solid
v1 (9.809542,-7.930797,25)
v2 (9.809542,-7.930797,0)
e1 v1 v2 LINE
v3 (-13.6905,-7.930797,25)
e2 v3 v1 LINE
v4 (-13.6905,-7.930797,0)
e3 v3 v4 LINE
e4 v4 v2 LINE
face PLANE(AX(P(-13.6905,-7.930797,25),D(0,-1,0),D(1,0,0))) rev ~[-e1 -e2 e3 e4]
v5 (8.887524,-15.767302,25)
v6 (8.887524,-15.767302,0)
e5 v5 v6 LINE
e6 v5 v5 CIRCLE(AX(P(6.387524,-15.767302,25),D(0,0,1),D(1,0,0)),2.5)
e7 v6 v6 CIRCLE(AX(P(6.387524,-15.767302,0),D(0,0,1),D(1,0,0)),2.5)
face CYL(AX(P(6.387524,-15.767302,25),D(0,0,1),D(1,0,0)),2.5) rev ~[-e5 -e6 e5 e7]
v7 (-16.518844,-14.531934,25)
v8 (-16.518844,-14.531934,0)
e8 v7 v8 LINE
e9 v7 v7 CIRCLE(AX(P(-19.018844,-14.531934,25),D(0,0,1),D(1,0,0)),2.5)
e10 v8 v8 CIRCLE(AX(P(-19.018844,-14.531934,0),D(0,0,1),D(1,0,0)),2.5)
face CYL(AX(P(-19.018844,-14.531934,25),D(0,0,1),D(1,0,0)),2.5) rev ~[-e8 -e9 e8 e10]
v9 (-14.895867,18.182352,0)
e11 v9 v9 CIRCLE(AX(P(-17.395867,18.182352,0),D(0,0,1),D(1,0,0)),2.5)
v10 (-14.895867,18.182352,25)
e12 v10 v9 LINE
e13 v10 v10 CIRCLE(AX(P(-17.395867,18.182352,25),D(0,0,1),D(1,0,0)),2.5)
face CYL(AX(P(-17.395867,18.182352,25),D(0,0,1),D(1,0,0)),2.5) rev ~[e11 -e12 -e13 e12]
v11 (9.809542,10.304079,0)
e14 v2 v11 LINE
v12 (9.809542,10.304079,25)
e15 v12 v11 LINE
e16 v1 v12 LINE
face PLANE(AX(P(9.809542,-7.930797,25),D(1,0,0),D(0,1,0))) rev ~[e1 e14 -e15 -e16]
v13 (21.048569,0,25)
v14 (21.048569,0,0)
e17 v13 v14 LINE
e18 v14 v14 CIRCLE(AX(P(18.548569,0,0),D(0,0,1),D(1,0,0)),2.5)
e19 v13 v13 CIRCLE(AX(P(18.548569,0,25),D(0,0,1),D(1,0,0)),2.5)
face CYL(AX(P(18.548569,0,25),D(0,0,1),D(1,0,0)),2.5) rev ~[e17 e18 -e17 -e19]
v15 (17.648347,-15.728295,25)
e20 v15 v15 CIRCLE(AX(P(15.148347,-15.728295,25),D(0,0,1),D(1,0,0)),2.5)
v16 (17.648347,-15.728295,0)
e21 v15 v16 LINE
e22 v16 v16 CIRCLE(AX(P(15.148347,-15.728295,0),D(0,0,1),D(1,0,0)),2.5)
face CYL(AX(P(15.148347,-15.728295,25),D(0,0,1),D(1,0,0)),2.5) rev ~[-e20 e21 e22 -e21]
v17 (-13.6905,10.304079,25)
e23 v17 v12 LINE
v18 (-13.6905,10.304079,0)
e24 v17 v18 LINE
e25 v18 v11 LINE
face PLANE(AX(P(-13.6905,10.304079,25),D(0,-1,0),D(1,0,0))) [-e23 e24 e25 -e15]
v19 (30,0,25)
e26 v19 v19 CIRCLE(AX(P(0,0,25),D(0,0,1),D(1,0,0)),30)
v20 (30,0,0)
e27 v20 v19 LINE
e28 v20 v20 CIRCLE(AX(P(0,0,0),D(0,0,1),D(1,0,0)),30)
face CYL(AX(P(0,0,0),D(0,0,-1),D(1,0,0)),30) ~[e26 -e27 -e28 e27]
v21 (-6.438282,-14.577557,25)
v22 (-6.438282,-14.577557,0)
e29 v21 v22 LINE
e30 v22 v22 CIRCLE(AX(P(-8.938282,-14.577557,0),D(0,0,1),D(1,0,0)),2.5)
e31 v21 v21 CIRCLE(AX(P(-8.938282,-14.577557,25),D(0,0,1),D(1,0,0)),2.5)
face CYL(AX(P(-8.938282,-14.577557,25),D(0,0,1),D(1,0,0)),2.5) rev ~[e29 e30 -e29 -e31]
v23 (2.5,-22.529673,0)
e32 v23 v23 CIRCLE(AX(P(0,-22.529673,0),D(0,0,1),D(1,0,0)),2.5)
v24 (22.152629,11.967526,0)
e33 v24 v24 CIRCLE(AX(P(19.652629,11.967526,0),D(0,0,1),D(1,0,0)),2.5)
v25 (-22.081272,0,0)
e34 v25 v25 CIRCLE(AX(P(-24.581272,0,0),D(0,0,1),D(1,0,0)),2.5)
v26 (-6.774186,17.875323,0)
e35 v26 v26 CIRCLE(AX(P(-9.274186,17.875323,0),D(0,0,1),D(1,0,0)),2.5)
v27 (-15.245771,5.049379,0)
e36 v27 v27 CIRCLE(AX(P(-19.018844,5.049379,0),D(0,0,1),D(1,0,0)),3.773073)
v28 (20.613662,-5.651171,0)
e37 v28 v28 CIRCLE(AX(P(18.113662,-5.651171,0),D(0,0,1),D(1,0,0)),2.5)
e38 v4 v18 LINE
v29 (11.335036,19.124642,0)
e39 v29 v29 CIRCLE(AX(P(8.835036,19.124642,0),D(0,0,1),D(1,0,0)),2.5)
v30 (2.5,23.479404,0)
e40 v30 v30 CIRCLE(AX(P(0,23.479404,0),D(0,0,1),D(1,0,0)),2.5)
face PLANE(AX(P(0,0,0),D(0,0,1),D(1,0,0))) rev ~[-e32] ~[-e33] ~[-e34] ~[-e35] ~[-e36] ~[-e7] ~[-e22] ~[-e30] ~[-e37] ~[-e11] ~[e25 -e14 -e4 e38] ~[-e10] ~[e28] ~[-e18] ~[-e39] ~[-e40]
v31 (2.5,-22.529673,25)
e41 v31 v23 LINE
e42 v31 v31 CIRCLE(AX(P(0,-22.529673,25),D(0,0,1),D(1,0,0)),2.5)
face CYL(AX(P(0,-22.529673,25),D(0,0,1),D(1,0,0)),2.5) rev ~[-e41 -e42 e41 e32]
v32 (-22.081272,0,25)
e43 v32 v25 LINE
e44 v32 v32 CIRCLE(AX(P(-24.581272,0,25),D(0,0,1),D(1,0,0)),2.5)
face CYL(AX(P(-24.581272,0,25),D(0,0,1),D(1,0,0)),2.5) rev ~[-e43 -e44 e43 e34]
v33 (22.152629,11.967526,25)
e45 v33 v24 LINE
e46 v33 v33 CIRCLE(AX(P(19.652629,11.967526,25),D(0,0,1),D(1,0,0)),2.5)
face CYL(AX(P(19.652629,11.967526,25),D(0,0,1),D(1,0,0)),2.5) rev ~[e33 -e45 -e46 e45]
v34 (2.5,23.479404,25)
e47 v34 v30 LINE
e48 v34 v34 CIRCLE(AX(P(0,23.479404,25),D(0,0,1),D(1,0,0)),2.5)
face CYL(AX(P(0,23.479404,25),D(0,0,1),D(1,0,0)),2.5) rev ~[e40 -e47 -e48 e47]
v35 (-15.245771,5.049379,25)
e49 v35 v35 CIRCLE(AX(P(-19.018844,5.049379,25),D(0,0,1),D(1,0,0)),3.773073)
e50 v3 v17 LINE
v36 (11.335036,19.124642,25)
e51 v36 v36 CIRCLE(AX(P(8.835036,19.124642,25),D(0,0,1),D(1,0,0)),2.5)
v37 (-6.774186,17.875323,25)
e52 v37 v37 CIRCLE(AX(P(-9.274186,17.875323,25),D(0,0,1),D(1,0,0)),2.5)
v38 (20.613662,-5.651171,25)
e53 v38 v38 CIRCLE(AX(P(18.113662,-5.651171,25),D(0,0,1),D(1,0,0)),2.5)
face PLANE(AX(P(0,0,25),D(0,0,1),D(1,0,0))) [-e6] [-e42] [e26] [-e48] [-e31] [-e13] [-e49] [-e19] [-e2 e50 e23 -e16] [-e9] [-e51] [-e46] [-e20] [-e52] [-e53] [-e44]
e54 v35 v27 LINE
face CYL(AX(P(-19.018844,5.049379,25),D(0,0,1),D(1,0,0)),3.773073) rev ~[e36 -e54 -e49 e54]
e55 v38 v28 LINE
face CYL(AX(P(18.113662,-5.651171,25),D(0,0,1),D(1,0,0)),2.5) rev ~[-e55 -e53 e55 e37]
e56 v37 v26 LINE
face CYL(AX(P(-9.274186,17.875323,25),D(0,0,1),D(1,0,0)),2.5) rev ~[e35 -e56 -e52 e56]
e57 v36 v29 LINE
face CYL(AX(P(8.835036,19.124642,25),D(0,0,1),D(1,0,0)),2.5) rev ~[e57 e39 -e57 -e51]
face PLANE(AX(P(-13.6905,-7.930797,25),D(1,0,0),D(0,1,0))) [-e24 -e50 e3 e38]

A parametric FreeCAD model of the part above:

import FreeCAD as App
import Part
import Sketcher
Q = App.Units.Quantity


def add_polygon(sketch, points):
    """Adds a closed chain of lines whose ends are joined by coincident constraints."""
    first, n = sketch.GeometryCount, len(points)
    for a, b in zip(points, points[1:] + points[:1]):
        sketch.addGeometry(Part.LineSegment(App.Vector(*a, 0), App.Vector(*b, 0)), False)
    for i in range(n):
        sketch.addConstraint(Sketcher.Constraint("Coincident", first + i, 2, first + (i + 1) % n, 1))

doc = App.newDocument("Part")
body = doc.addObject("PartDesign::Body", "Body")

# Sketch on XY plane
sketch1 = body.newObject("Sketcher::SketchObject", "Sketch")
sketch1.AttachmentSupport = (doc.getObject("XY_Plane"), [""])
sketch1.MapMode = "FlatFace"
sketch1.addGeometry(Part.Circle(App.Vector(0, 0, 0), App.Vector(0, 0, 1), 30), False)
sketch1.addConstraint(Sketcher.Constraint("Coincident", 0, 3, -1, 1))
sketch1.addConstraint(Sketcher.Constraint("Diameter", 0, Q("60 mm")))
pad1 = body.newObject("PartDesign::Pad", "Pad")
pad1.Profile = sketch1
pad1.Length = 25

# Sketch on XY plane
sketch2 = body.newObject("Sketcher::SketchObject", "Sketch001")
sketch2.AttachmentSupport = (doc.getObject("XY_Plane"), [""])
sketch2.MapMode = "FlatFace"
sketch2.AttachmentOffset = App.Placement(App.Vector(0, 0, 25), App.Rotation())
add_polygon(sketch2, [(-13.6905, 10.304079), (-13.6905, -7.930797), (9.809542, -7.930797), (9.809542, 10.304079)])  # lines 0-3
sketch2.addConstraint(Sketcher.Constraint("Vertical", 0))
sketch2.addConstraint(Sketcher.Constraint("Horizontal", 1))
sketch2.addConstraint(Sketcher.Constraint("Vertical", 2))
sketch2.addConstraint(Sketcher.Constraint("Horizontal", 3))
sketch2.addConstraint(Sketcher.Constraint("DistanceX", 0, 2, -1, 1, Q("13.6905 mm")))
sketch2.addConstraint(Sketcher.Constraint("DistanceX", 1, 1, 1, 2, Q("23.500042 mm")))
sketch2.addConstraint(Sketcher.Constraint("DistanceY", 0, 2, 0, 1, Q("18.234876 mm")))
sketch2.addConstraint(Sketcher.Constraint("DistanceY", -1, 1, 2, 2, Q("10.304079 mm")))
pad2 = body.newObject("PartDesign::Pad", "Pad001")
pad2.Profile = sketch2
pad2.Length = 15
pad2.Reversed = True

# Sketch on XY plane
sketch3 = body.newObject("Sketcher::SketchObject", "Sketch002")
sketch3.AttachmentSupport = (doc.getObject("XY_Plane"), [""])
sketch3.MapMode = "FlatFace"
sketch3.AttachmentOffset = App.Placement(App.Vector(0, 0, 25), App.Rotation())
add_polygon(sketch3, [(-13.6905, 10.304079), (-13.6905, -7.930797), (9.809542, -7.930797), (9.809542, 10.304079)])  # lines 0-3
sketch3.addConstraint(Sketcher.Constraint("Vertical", 0))
sketch3.addConstraint(Sketcher.Constraint("Horizontal", 1))
sketch3.addConstraint(Sketcher.Constraint("Vertical", 2))
sketch3.addConstraint(Sketcher.Constraint("Horizontal", 3))
sketch3.addConstraint(Sketcher.Constraint("DistanceX", 0, 2, -1, 1, Q("13.6905 mm")))
sketch3.addConstraint(Sketcher.Constraint("DistanceX", 1, 1, 1, 2, Q("23.500042 mm")))
sketch3.addConstraint(Sketcher.Constraint("DistanceY", 0, 2, 0, 1, Q("18.234876 mm")))
sketch3.addConstraint(Sketcher.Constraint("DistanceY", -1, 1, 2, 2, Q("10.304079 mm")))
pocket1 = body.newObject("PartDesign::Pocket", "Pocket")
pocket1.Profile = sketch3
pocket1.Length = 25

# Sketch on XY plane
sketch4 = body.newObject("Sketcher::SketchObject", "Sketch003")
sketch4.AttachmentSupport = (doc.getObject("XY_Plane"), [""])
sketch4.MapMode = "FlatFace"
sketch4.AttachmentOffset = App.Placement(App.Vector(0, 0, 25), App.Rotation())
sketch4.addGeometry(Part.Circle(App.Vector(0, -22.529673, 0), App.Vector(0, 0, 1), 2.5), False)
sketch4.addGeometry(Part.Circle(App.Vector(18.548569, 0, 0), App.Vector(0, 0, 1), 2.5), False)
sketch4.addGeometry(Part.Circle(App.Vector(8.835036, 19.124642, 0), App.Vector(0, 0, 1), 2.5), False)
sketch4.addGeometry(Part.Circle(App.Vector(-19.018844, -14.531934, 0), App.Vector(0, 0, 1), 2.5), False)
sketch4.addGeometry(Part.Circle(App.Vector(-19.018844, 5.049379, 0), App.Vector(0, 0, 1), 3.773073), False)
sketch4.addConstraint(Sketcher.Constraint("Equal", 0, 1))
sketch4.addConstraint(Sketcher.Constraint("Equal", 1, 2))
sketch4.addConstraint(Sketcher.Constraint("Equal", 2, 3))
sketch4.addConstraint(Sketcher.Constraint("PointOnObject", 0, 3, -2))
sketch4.addConstraint(Sketcher.Constraint("PointOnObject", 1, 3, -1))
sketch4.addConstraint(Sketcher.Constraint("Vertical", 3, 3, 4, 3))
sketch4.addConstraint(Sketcher.Constraint("Diameter", 0, Q("5 mm")))
sketch4.addConstraint(Sketcher.Constraint("Diameter", 4, Q("7.546146 mm")))
sketch4.addConstraint(Sketcher.Constraint("DistanceX", -1, 1, 1, 3, Q("18.548569 mm")))
sketch4.addConstraint(Sketcher.Constraint("DistanceY", -1, 1, 4, 3, Q("5.049379 mm")))
sketch4.addConstraint(Sketcher.Constraint("DistanceY", 0, 3, 3, 3, Q("7.997739 mm")))
sketch4.addConstraint(Sketcher.Constraint("DistanceX", 3, 3, 2, 3, Q("27.85388 mm")))
sketch4.addConstraint(Sketcher.Constraint("DistanceY", 0, 3, 4, 3, Q("27.579052 mm")))
sketch4.addConstraint(Sketcher.Constraint("DistanceX", -1, 1, 2, 3, Q("8.835036 mm")))
sketch4.addConstraint(Sketcher.Constraint("DistanceY", -1, 1, 2, 3, Q("19.124642 mm")))
pocket2 = body.newObject("PartDesign::Pocket", "Pocket001")
pocket2.Profile = sketch4
pocket2.Length = 25

# Sketch on XY plane
sketch5 = body.newObject("Sketcher::SketchObject", "Sketch004")
sketch5.AttachmentSupport = (doc.getObject("XY_Plane"), [""])
sketch5.MapMode = "FlatFace"
sketch5.AttachmentOffset = App.Placement(App.Vector(0, 0, 25), App.Rotation())
sketch5.addGeometry(Part.Circle(App.Vector(-9.274186, 17.875323, 0), App.Vector(0, 0, 1), 2.5), False)
sketch5.addGeometry(Part.Circle(App.Vector(0, 23.479404, 0), App.Vector(0, 0, 1), 2.5), False)
sketch5.addGeometry(Part.Circle(App.Vector(15.148347, -15.728295, 0), App.Vector(0, 0, 1), 2.5), False)
sketch5.addConstraint(Sketcher.Constraint("Equal", 0, 1))
sketch5.addConstraint(Sketcher.Constraint("Equal", 1, 2))
sketch5.addConstraint(Sketcher.Constraint("PointOnObject", 1, 3, -2))
sketch5.addConstraint(Sketcher.Constraint("Diameter", 0, Q("5 mm")))
sketch5.addConstraint(Sketcher.Constraint("DistanceY", 2, 3, 1, 3, Q("39.207699 mm")))
sketch5.addConstraint(Sketcher.Constraint("DistanceY", 0, 3, 1, 3, Q("5.604081 mm")))
sketch5.addConstraint(Sketcher.Constraint("DistanceX", 0, 3, -1, 1, Q("9.274186 mm")))
sketch5.addConstraint(Sketcher.Constraint("DistanceY", -1, 1, 0, 3, Q("17.875323 mm")))
sketch5.addConstraint(Sketcher.Constraint("DistanceX", -1, 1, 2, 3, Q("15.148347 mm")))
pocket3 = body.newObject("PartDesign::Pocket", "Pocket002")
pocket3.Profile = sketch5
pocket3.Length = 25

# Sketch on XY plane
sketch6 = body.newObject("Sketcher::SketchObject", "Sketch005")
sketch6.AttachmentSupport = (doc.getObject("XY_Plane"), [""])
sketch6.MapMode = "FlatFace"
sketch6.AttachmentOffset = App.Placement(App.Vector(0, 0, 25), App.Rotation())
sketch6.addGeometry(Part.Circle(App.Vector(-8.938282, -14.577557, 0), App.Vector(0, 0, 1), 2.5), False)
sketch6.addGeometry(Part.Circle(App.Vector(19.652629, 11.967526, 0), App.Vector(0, 0, 1), 2.5), False)
sketch6.addGeometry(Part.Circle(App.Vector(6.387524, -15.767302, 0), App.Vector(0, 0, 1), 2.5), False)
sketch6.addGeometry(Part.Circle(App.Vector(-24.581272, 0, 0), App.Vector(0, 0, 1), 2.5), False)
sketch6.addGeometry(Part.Circle(App.Vector(-17.395867, 18.182352, 0), App.Vector(0, 0, 1), 2.5), False)
sketch6.addConstraint(Sketcher.Constraint("Equal", 0, 1))
sketch6.addConstraint(Sketcher.Constraint("Equal", 1, 2))
sketch6.addConstraint(Sketcher.Constraint("Equal", 2, 3))
sketch6.addConstraint(Sketcher.Constraint("Equal", 3, 4))
sketch6.addConstraint(Sketcher.Constraint("PointOnObject", 3, 3, -1))
sketch6.addConstraint(Sketcher.Constraint("Diameter", 0, Q("5 mm")))
sketch6.addConstraint(Sketcher.Constraint("DistanceX", 3, 3, 1, 3, Q("44.233901 mm")))
sketch6.addConstraint(Sketcher.Constraint("DistanceX", 0, 3, -1, 1, Q("8.938282 mm")))
sketch6.addConstraint(Sketcher.Constraint("DistanceX", -1, 1, 1, 3, Q("19.652629 mm")))
sketch6.addConstraint(Sketcher.Constraint("DistanceY", 2, 3, 1, 3, Q("27.734828 mm")))
sketch6.addConstraint(Sketcher.Constraint("DistanceY", 0, 3, 4, 3, Q("32.759909 mm")))
sketch6.addConstraint(Sketcher.Constraint("DistanceX", 4, 3, 2, 3, Q("23.783391 mm")))
sketch6.addConstraint(Sketcher.Constraint("DistanceY", 0, 3, -1, 1, Q("14.577557 mm")))
sketch6.addConstraint(Sketcher.Constraint("DistanceY", -1, 1, 1, 3, Q("11.967526 mm")))
sketch6.addConstraint(Sketcher.Constraint("DistanceX", -1, 1, 2, 3, Q("6.387524 mm")))
pocket4 = body.newObject("PartDesign::Pocket", "Pocket003")
pocket4.Profile = sketch6
pocket4.Length = 25

# Sketch on XY plane
sketch7 = body.newObject("Sketcher::SketchObject", "Sketch006")
sketch7.AttachmentSupport = (doc.getObject("XY_Plane"), [""])
sketch7.MapMode = "FlatFace"
sketch7.AttachmentOffset = App.Placement(App.Vector(0, 0, 25), App.Rotation())
sketch7.addGeometry(Part.Circle(App.Vector(18.113662, -5.651171, 0), App.Vector(0, 0, 1), 2.5), False)
sketch7.addConstraint(Sketcher.Constraint("Diameter", 0, Q("5 mm")))
sketch7.addConstraint(Sketcher.Constraint("DistanceY", 0, 3, -1, 1, Q("5.651171 mm")))
sketch7.addConstraint(Sketcher.Constraint("DistanceX", -1, 1, 0, 3, Q("18.113662 mm")))
pocket5 = body.newObject("PartDesign::Pocket", "Pocket004")
pocket5.Profile = sketch7
pocket5.Length = 25

doc.recompute()
